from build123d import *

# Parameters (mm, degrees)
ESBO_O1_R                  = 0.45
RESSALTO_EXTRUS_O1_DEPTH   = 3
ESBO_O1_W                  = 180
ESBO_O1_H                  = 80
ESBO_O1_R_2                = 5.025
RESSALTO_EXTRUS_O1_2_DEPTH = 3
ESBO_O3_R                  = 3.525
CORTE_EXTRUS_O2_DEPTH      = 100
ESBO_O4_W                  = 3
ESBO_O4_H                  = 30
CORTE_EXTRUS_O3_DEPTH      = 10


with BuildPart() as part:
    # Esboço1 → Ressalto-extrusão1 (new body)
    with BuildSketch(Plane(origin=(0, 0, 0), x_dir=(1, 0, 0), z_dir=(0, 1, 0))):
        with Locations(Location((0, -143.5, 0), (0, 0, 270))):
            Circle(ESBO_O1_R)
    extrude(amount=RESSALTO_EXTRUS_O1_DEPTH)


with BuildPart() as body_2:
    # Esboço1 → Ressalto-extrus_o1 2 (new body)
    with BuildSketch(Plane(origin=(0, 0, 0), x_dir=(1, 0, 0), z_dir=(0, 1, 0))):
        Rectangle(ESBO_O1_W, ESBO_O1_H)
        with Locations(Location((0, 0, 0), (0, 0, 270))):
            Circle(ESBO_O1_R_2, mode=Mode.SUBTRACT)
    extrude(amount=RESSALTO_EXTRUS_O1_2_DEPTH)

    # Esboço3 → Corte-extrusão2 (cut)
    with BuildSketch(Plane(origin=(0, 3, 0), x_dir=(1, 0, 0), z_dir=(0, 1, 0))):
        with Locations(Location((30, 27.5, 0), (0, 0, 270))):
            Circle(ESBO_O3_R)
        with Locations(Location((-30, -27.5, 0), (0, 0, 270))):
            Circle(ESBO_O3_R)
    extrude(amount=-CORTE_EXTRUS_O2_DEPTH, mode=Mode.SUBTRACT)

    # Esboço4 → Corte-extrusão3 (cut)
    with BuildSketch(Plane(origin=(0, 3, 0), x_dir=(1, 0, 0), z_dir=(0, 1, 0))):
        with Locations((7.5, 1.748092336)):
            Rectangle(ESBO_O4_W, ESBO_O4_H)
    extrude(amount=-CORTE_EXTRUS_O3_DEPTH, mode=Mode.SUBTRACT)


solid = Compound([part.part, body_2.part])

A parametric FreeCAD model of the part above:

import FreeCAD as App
import Part
import Sketcher
from FreeCAD import Vector


def add_polygon(sketch, points):
    """Adds a closed chain of lines whose ends are joined by coincident constraints."""
    first, n = sketch.GeometryCount, len(points)
    for a, b in zip(points, points[1:] + points[:1]):
        sketch.addGeometry(Part.LineSegment(App.Vector(*a, 0), App.Vector(*b, 0)), False)
    for i in range(n):
        sketch.addConstraint(Sketcher.Constraint("Coincident", first + i, 2, first + (i + 1) % n, 1))

doc = App.newDocument("Part")
body = doc.addObject("PartDesign::Body", "Body")

# Sketch on XZ plane
sketch1 = doc.addObject("Sketcher::SketchObject", "Sketch")
body.addObject(sketch1)
sketch1.AttachmentSupport = (doc.XZ_Plane, [""])
sketch1.MapMode = "FlatFace"
sketch1.addGeometry(Part.Circle(Vector(0, 143.5, 0), Vector(0, 0, 1), 0.45), False)
sketch1.addConstraint(Sketcher.Constraint("PointOnObject", 0, 3, -2))
sketch1.addConstraint(Sketcher.Constraint("Diameter", 0, 0.9))
sketch1.addConstraint(Sketcher.Constraint("DistanceY", -1, 1, 0, 3, 143.5))
pad1 = doc.addObject("PartDesign::Pad", "Pad")
body.addObject(pad1)
pad1.Profile = sketch1
pad1.Length = 3
pad1.Reversed = True
body2 = doc.addObject("PartDesign::Body", "Body001")

# Sketch on XZ plane
sketch2 = doc.addObject("Sketcher::SketchObject", "Sketch001")
body2.addObject(sketch2)
sketch2.AttachmentSupport = (doc.getObject("XZ_Plane001"), [""])
sketch2.MapMode = "FlatFace"
add_polygon(sketch2, [(-90, -40), (-90, 40), (90, 40), (90, -40)])  # lines 0-3
sketch2.addGeometry(Part.Circle(Vector(0, 0, 0), Vector(0, 0, 1), 5), False)  # 4
sketch2.addConstraint(Sketcher.Constraint("Vertical", 0))
sketch2.addConstraint(Sketcher.Constraint("Horizontal", 1))
sketch2.addConstraint(Sketcher.Constraint("Vertical", 2))
sketch2.addConstraint(Sketcher.Constraint("Horizontal", 3))
sketch2.addConstraint(Sketcher.Constraint("Coincident", 4, 3, -1, 1))
sketch2.addConstraint(Sketcher.Constraint("Symmetric", 0, 2, 2, 2, -1, 1))
sketch2.addConstraint(Sketcher.Constraint("Diameter", 4, 10.05))
sketch2.addConstraint(Sketcher.Constraint("DistanceX", 1, 1, 1, 2, 180.0))
sketch2.addConstraint(Sketcher.Constraint("DistanceY", 0, 1, 0, 2, 80.0))
pad2 = doc.addObject("PartDesign::Pad", "Pad001")
body2.addObject(pad2)
pad2.Profile = sketch2
pad2.Length = 3
pad2.Reversed = True

# Sketch on XZ plane
sketch3 = doc.addObject("Sketcher::SketchObject", "Sketch002")
body2.addObject(sketch3)
sketch3.AttachmentSupport = (doc.getObject("XZ_Plane001"), [""])
sketch3.MapMode = "FlatFace"
sketch3.AttachmentOffset = App.Placement(Vector(0, 0, -3), App.Rotation())
sketch3.addGeometry(Part.Circle(Vector(30, -27.5, 0), Vector(0, 0, 1), 3.5), False)
sketch3.addGeometry(Part.Circle(Vector(-30, 27.5, 0), Vector(0, 0, 1), 3.5), False)
sketch3.addConstraint(Sketcher.Constraint("Equal", 0, 1))
sketch3.addConstraint(Sketcher.Constraint("Symmetric", 0, 3, 1, 3, -1, 1))
sketch3.addConstraint(Sketcher.Constraint("Diameter", 0, 7.05))
sketch3.addConstraint(Sketcher.Constraint("DistanceX", -1, 1, 0, 3, 30.0))
sketch3.addConstraint(Sketcher.Constraint("DistanceY", 0, 3, 1, 3, 55.0))
pocket1 = doc.addObject("PartDesign::Pocket", "Pocket")
body2.addObject(pocket1)
pocket1.Profile = sketch3
pocket1.Length = 100
pocket1.Reversed = True

# Sketch on XZ plane
sketch4 = doc.addObject("Sketcher::SketchObject", "Sketch003")
body2.addObject(sketch4)
sketch4.AttachmentSupport = (doc.getObject("XZ_Plane001"), [""])
sketch4.MapMode = "FlatFace"
sketch4.AttachmentOffset = App.Placement(Vector(0, 0, -3), App.Rotation())
add_polygon(sketch4, [(6, -16.7), (6, 13.3), (9, 13.3), (9, -16.7)])  # lines 0-3
sketch4.addConstraint(Sketcher.Constraint("Vertical", 0))
sketch4.addConstraint(Sketcher.Constraint("Horizontal", 1))
sketch4.addConstraint(Sketcher.Constraint("Vertical", 2))
sketch4.addConstraint(Sketcher.Constraint("Horizontal", 3))
sketch4.addConstraint(Sketcher.Constraint("DistanceX", 1, 1, 1, 2, 3.0))
sketch4.addConstraint(Sketcher.Constraint("DistanceY", 0, 1, 0, 2, 30.0))
sketch4.addConstraint(Sketcher.Constraint("DistanceX", -1, 1, 0, 2, 6.0))
sketch4.addConstraint(Sketcher.Constraint("DistanceY", -1, 1, 0, 2, 13.251908))
pocket2 = doc.addObject("PartDesign::Pocket", "Pocket001")
body2.addObject(pocket2)
pocket2.Profile = sketch4
pocket2.Length = 10
pocket2.Reversed = True

doc.recompute()
